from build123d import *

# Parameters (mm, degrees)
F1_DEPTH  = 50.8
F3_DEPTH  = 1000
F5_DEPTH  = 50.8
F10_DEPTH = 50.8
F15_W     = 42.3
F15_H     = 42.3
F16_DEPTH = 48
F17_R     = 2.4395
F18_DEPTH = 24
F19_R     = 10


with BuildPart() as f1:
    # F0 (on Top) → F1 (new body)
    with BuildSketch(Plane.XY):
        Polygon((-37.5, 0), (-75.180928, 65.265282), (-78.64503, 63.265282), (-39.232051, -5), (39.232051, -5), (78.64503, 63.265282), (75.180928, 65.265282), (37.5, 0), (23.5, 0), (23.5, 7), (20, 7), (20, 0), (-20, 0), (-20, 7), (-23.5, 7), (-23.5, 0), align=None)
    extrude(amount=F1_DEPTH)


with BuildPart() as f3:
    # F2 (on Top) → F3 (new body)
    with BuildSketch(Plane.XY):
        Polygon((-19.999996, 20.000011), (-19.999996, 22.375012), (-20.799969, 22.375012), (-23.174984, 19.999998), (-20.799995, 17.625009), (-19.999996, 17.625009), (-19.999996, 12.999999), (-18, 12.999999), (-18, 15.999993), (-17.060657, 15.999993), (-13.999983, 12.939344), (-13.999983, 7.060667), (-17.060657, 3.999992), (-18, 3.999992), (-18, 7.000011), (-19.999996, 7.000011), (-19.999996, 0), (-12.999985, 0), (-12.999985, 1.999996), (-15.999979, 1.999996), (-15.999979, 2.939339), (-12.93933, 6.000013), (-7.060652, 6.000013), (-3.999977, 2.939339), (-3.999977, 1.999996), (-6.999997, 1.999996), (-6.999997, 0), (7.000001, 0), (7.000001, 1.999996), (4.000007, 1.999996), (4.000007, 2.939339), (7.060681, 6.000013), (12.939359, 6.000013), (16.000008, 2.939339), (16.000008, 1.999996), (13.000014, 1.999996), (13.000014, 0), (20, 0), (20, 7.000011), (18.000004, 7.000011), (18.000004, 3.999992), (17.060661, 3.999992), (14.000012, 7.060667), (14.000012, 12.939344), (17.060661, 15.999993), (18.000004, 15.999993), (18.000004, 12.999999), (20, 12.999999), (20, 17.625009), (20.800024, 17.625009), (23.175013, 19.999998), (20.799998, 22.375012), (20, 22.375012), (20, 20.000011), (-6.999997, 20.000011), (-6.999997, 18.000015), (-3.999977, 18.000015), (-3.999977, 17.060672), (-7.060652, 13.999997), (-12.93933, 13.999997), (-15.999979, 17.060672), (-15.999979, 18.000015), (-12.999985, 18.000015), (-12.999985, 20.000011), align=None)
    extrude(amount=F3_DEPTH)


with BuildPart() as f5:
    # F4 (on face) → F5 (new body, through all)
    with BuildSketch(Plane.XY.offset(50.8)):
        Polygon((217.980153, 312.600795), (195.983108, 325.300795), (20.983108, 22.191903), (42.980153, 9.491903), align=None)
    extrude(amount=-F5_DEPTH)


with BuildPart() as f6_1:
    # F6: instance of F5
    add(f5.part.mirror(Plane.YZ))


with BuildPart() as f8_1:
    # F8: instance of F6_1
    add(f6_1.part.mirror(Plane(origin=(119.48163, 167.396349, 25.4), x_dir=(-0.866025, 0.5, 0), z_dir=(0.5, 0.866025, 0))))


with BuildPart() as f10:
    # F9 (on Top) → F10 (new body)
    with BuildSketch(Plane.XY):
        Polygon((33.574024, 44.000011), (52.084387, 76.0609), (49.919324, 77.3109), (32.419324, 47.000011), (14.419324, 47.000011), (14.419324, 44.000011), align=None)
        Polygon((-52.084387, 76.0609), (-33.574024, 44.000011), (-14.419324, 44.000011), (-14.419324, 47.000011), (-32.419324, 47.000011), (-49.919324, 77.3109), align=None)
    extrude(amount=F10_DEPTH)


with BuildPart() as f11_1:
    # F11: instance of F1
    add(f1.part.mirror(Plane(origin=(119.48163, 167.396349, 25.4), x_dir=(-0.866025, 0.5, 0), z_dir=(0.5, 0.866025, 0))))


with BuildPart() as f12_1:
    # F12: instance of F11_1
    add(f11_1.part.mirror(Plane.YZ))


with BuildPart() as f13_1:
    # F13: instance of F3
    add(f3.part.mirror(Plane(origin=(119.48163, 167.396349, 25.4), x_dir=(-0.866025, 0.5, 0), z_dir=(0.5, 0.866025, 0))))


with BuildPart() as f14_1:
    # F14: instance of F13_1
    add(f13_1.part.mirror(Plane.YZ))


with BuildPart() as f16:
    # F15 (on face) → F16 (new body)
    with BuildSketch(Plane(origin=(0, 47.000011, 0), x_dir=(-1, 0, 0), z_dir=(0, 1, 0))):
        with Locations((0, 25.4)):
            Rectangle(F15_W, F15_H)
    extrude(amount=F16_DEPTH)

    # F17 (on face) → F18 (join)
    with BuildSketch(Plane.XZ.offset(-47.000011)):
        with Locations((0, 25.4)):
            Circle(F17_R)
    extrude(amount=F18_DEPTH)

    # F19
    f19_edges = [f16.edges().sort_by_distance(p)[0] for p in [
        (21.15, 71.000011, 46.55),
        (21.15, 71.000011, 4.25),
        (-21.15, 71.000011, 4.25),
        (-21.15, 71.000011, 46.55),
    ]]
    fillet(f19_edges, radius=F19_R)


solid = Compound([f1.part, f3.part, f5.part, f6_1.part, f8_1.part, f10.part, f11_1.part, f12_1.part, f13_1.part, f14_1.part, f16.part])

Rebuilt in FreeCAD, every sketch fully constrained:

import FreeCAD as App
import Part
import Sketcher

V = App.Vector
Q = App.Units.Quantity


def edges_at(feature, points):
    """Names of the edges that pass closest to the given points."""
    edges = feature.Shape.Edges
    near = lambda p: min(range(len(edges)), key=lambda i: edges[i].distToShape(Part.Vertex(*p))[0])
    return sorted({f"Edge{near(p) + 1}" for p in points})

doc = App.newDocument("Part")
params = doc.addObject("Spreadsheet::Sheet", "Params")
for row, (alias, value) in enumerate([
    ("sketch1_width", "14 mm"),
    ("sketch1_width2", "40 mm"),
    ("sketch1_height", "7 mm"),
    ("sketch1_length", "4 mm"),
    ("sketch1_width3", "3.5 mm"),
    ("pad1_length", "50.8 mm"),
    ("sketch2_width", "0.799999 mm"),
    ("pad2_length", "1000 mm"),
    ("sketch3_length", "350.000001 mm"),
    ("sketch3_length2", "25.4 mm"),
    ("pad3_length", "50.8 mm"),
    ("sketch4_width", "18 mm"),
    ("sketch4_height", "3 mm"),
    ("sketch4_length", "35 mm"),
    ("sketch4_length2", "2.5 mm"),
    ("pad4_length", "50.8 mm"),
    ("sketch5_width", "42.3 mm"),
    ("pad5_length", "48 mm"),
    ("pad6_length", "24 mm"),
    ("fillet_radius", "10 mm"),
], start=1):
    params.set(f"A{row}", alias)
    params.set(f"B{row}", "=" + value)
    params.setAlias(f"B{row}", alias)

body = doc.addObject("PartDesign::Body", "Body")

sketch1 = body.newObject("Sketcher::SketchObject", "Sketch")
sketch1.AttachmentSupport = (doc.getObject("XY_Plane"), [""])
sketch1.MapMode = "FlatFace"
sketch1.addGeometry([
    Part.LineSegment(V(-37.5, 0, 0), V(-75.180928, 65.265282, 0)),
    Part.LineSegment(V(-75.180928, 65.265282, 0), V(-78.64503, 63.265282, 0)),
    Part.LineSegment(V(-78.64503, 63.265282, 0), V(-39.232051, -5, 0)),
    Part.LineSegment(V(-39.232051, -5, 0), V(39.232051, -5, 0)),
    Part.LineSegment(V(39.232051, -5, 0), V(78.64503, 63.265282, 0)),
    Part.LineSegment(V(78.64503, 63.265282, 0), V(75.180928, 65.265282, 0)),
    Part.LineSegment(V(75.180928, 65.265282, 0), V(37.5, 0, 0)),
    Part.LineSegment(V(37.5, 0, 0), V(23.5, 0, 0)),
    Part.LineSegment(V(23.5, 0, 0), V(23.5, 7, 0)),
    Part.LineSegment(V(23.5, 7, 0), V(20, 7, 0)),
    Part.LineSegment(V(20, 7, 0), V(20, 0, 0)),
    Part.LineSegment(V(20, 0, 0), V(-20, 0, 0)),
    Part.LineSegment(V(-20, 0, 0), V(-20, 7, 0)),
    Part.LineSegment(V(-20, 7, 0), V(-23.5, 7, 0)),
    Part.LineSegment(V(-23.5, 7, 0), V(-23.5, 0, 0)),
    Part.LineSegment(V(-23.5, 0, 0), V(-37.5, 0, 0)),
], False)
sketch1.addConstraint([
    Sketcher.Constraint("Coincident", 0, 2, 1, 1),
    Sketcher.Constraint("Coincident", 1, 2, 2, 1),
    Sketcher.Constraint("Coincident", 2, 2, 3, 1),
    Sketcher.Constraint("Coincident", 3, 2, 4, 1),
    Sketcher.Constraint("Coincident", 4, 2, 5, 1),
    Sketcher.Constraint("Coincident", 5, 2, 6, 1),
    Sketcher.Constraint("Coincident", 6, 2, 7, 1),
    Sketcher.Constraint("Coincident", 7, 2, 8, 1),
    Sketcher.Constraint("Coincident", 8, 2, 9, 1),
    Sketcher.Constraint("Coincident", 9, 2, 10, 1),
    Sketcher.Constraint("Coincident", 10, 2, 11, 1),
    Sketcher.Constraint("Coincident", 11, 2, 12, 1),
    Sketcher.Constraint("Coincident", 12, 2, 13, 1),
    Sketcher.Constraint("Coincident", 13, 2, 14, 1),
    Sketcher.Constraint("Coincident", 14, 2, 15, 1),
    Sketcher.Constraint("Coincident", 15, 2, 0, 1),
    Sketcher.Constraint("Horizontal", 3),
    Sketcher.Constraint("Horizontal", 7),
    Sketcher.Constraint("Vertical", 8),
    Sketcher.Constraint("Horizontal", 9),
    Sketcher.Constraint("Vertical", 10),
    Sketcher.Constraint("Horizontal", 11),
    Sketcher.Constraint("Vertical", 12),
    Sketcher.Constraint("Horizontal", 13),
    Sketcher.Constraint("Vertical", 14),
    Sketcher.Constraint("Horizontal", 15),
    Sketcher.Constraint("Symmetric", 10, 2, 11, 2, -1, 1),
    Sketcher.Constraint("Symmetric", 7, 2, 14, 2, -1, 1),
    Sketcher.Constraint("Symmetric", 1, 2, 4, 2, -2),
    Sketcher.Constraint("Symmetric", 0, 2, 5, 2, -2),
    Sketcher.Constraint("Symmetric", 6, 2, 15, 2, -2),
    Sketcher.Constraint("Perpendicular", 0, 1),
    Sketcher.Constraint("Perpendicular", 1, 2),
    Sketcher.Constraint("Perpendicular", 4, 5),
    Sketcher.Constraint("Horizontal", 9, 2, 12, 2),
    Sketcher.Constraint("DistanceX", 7, 2, 7, 1, 14.0),
    Sketcher.Constraint("DistanceX", 11, 2, 11, 1, 40.0),
    Sketcher.Constraint("DistanceY", 8, 1, 8, 2, 7.0),
    Sketcher.Constraint("Angle", 0, Q("120 deg")),
    Sketcher.Constraint("Distance", 1, 4.0),
    Sketcher.Constraint("DistanceX", 9, 2, 9, 1, 3.5),
    Sketcher.Constraint("DistanceY", 2, 2, -1, 1, 5.0),
    Sketcher.Constraint("DistanceY", -1, 1, 0, 2, 65.265282),
])
sketch1.setExpression("Constraints[35]", "Params.sketch1_width")
sketch1.setExpression("Constraints[36]", "Params.sketch1_width2")
sketch1.setExpression("Constraints[37]", "Params.sketch1_height")
sketch1.setExpression("Constraints[39]", "Params.sketch1_length")
sketch1.setExpression("Constraints[40]", "Params.sketch1_width3")
pad1 = body.newObject("PartDesign::Pad", "Pad")
pad1.Profile = sketch1
pad1.setExpression("Length", "Params.pad1_length")
body2 = doc.addObject("PartDesign::Body", "Body001")

sketch2 = body2.newObject("Sketcher::SketchObject", "Sketch001")
sketch2.AttachmentSupport = (doc.getObject("XY_Plane001"), [""])
sketch2.MapMode = "FlatFace"
sketch2.addGeometry([
    Part.LineSegment(V(-19.999996, 20.000011, 0), V(-19.999996, 22.375012, 0)),
    Part.LineSegment(V(-19.999996, 22.375012, 0), V(-20.799969, 22.375012, 0)),
    Part.LineSegment(V(-20.799969, 22.375012, 0), V(-23.174984, 19.999998, 0)),
    Part.LineSegment(V(-23.174984, 19.999998, 0), V(-20.799995, 17.625009, 0)),
    Part.LineSegment(V(-20.799995, 17.625009, 0), V(-19.999996, 17.625009, 0)),
    Part.LineSegment(V(-19.999996, 17.625009, 0), V(-19.999996, 12.999999, 0)),
    Part.LineSegment(V(-19.999996, 12.999999, 0), V(-18, 12.999999, 0)),
    Part.LineSegment(V(-18, 12.999999, 0), V(-18, 15.999993, 0)),
    Part.LineSegment(V(-18, 15.999993, 0), V(-17.060657, 15.999993, 0)),
    Part.LineSegment(V(-17.060657, 15.999993, 0), V(-13.999983, 12.939344, 0)),
    Part.LineSegment(V(-13.999983, 12.939344, 0), V(-13.999983, 7.060667, 0)),
    Part.LineSegment(V(-13.999983, 7.060667, 0), V(-17.060657, 3.999992, 0)),
    Part.LineSegment(V(-17.060657, 3.999992, 0), V(-18, 3.999992, 0)),
    Part.LineSegment(V(-18, 3.999992, 0), V(-18, 7.000011, 0)),
    Part.LineSegment(V(-18, 7.000011, 0), V(-19.999996, 7.000011, 0)),
    Part.LineSegment(V(-19.999996, 7.000011, 0), V(-19.999996, 0, 0)),
    Part.LineSegment(V(-19.999996, 0, 0), V(-12.999985, 0, 0)),
    Part.LineSegment(V(-12.999985, 0, 0), V(-12.999985, 1.999996, 0)),
    Part.LineSegment(V(-12.999985, 1.999996, 0), V(-15.999979, 1.999996, 0)),
    Part.LineSegment(V(-15.999979, 1.999996, 0), V(-15.999979, 2.939339, 0)),
    Part.LineSegment(V(-15.999979, 2.939339, 0), V(-12.93933, 6.000013, 0)),
    Part.LineSegment(V(-12.93933, 6.000013, 0), V(-7.060652, 6.000013, 0)),
    Part.LineSegment(V(-7.060652, 6.000013, 0), V(-3.999977, 2.939339, 0)),
    Part.LineSegment(V(-3.999977, 2.939339, 0), V(-3.999977, 1.999996, 0)),
    Part.LineSegment(V(-3.999977, 1.999996, 0), V(-6.999997, 1.999996, 0)),
    Part.LineSegment(V(-6.999997, 1.999996, 0), V(-6.999997, 0, 0)),
    Part.LineSegment(V(-6.999997, 0, 0), V(7.000001, 0, 0)),
    Part.LineSegment(V(7.000001, 0, 0), V(7.000001, 1.999996, 0)),
    Part.LineSegment(V(7.000001, 1.999996, 0), V(4.000007, 1.999996, 0)),
    Part.LineSegment(V(4.000007, 1.999996, 0), V(4.000007, 2.939339, 0)),
    Part.LineSegment(V(4.000007, 2.939339, 0), V(7.060681, 6.000013, 0)),
    Part.LineSegment(V(7.060681, 6.000013, 0), V(12.939359, 6.000013, 0)),
    Part.LineSegment(V(12.939359, 6.000013, 0), V(16.000008, 2.939339, 0)),
    Part.LineSegment(V(16.000008, 2.939339, 0), V(16.000008, 1.999996, 0)),
    Part.LineSegment(V(16.000008, 1.999996, 0), V(13.000014, 1.999996, 0)),
    Part.LineSegment(V(13.000014, 1.999996, 0), V(13.000014, 0, 0)),
    Part.LineSegment(V(13.000014, 0, 0), V(20, 0, 0)),
    Part.LineSegment(V(20, 0, 0), V(20, 7.000011, 0)),
    Part.LineSegment(V(20, 7.000011, 0), V(18.000004, 7.000011, 0)),
    Part.LineSegment(V(18.000004, 7.000011, 0), V(18.000004, 3.999992, 0)),
    Part.LineSegment(V(18.000004, 3.999992, 0), V(17.060661, 3.999992, 0)),
    Part.LineSegment(V(17.060661, 3.999992, 0), V(14.000012, 7.060667, 0)),
    Part.LineSegment(V(14.000012, 7.060667, 0), V(14.000012, 12.939344, 0)),
    Part.LineSegment(V(14.000012, 12.939344, 0), V(17.060661, 15.999993, 0)),
    Part.LineSegment(V(17.060661, 15.999993, 0), V(18.000004, 15.999993, 0)),
    Part.LineSegment(V(18.000004, 15.999993, 0), V(18.000004, 12.999999, 0)),
    Part.LineSegment(V(18.000004, 12.999999, 0), V(20, 12.999999, 0)),
    Part.LineSegment(V(20, 12.999999, 0), V(20, 17.625009, 0)),
    Part.LineSegment(V(20, 17.625009, 0), V(20.800024, 17.625009, 0)),
    Part.LineSegment(V(20.800024, 17.625009, 0), V(23.175013, 19.999998, 0)),
    Part.LineSegment(V(23.175013, 19.999998, 0), V(20.799998, 22.375012, 0)),
    Part.LineSegment(V(20.799998, 22.375012, 0), V(20, 22.375012, 0)),
    Part.LineSegment(V(20, 22.375012, 0), V(20, 20.000011, 0)),
    Part.LineSegment(V(20, 20.000011, 0), V(-6.999997, 20.000011, 0)),
    Part.LineSegment(V(-6.999997, 20.000011, 0), V(-6.999997, 18.000015, 0)),
    Part.LineSegment(V(-6.999997, 18.000015, 0), V(-3.999977, 18.000015, 0)),
    Part.LineSegment(V(-3.999977, 18.000015, 0), V(-3.999977, 17.060672, 0)),
    Part.LineSegment(V(-3.999977, 17.060672, 0), V(-7.060652, 13.999997, 0)),
    Part.LineSegment(V(-7.060652, 13.999997, 0), V(-12.93933, 13.999997, 0)),
    Part.LineSegment(V(-12.93933, 13.999997, 0), V(-15.999979, 17.060672, 0)),
    Part.LineSegment(V(-15.999979, 17.060672, 0), V(-15.999979, 18.000015, 0)),
    Part.LineSegment(V(-15.999979, 18.000015, 0), V(-12.999985, 18.000015, 0)),
    Part.LineSegment(V(-12.999985, 18.000015, 0), V(-12.999985, 20.000011, 0)),
    Part.LineSegment(V(-12.999985, 20.000011, 0), V(-19.999996, 20.000011, 0)),
], False)
sketch2.addConstraint([
    Sketcher.Constraint("Coincident", 0, 2, 1, 1),
    Sketcher.Constraint("Coincident", 1, 2, 2, 1),
    Sketcher.Constraint("Coincident", 2, 2, 3, 1),
    Sketcher.Constraint("Coincident", 3, 2, 4, 1),
    Sketcher.Constraint("Coincident", 4, 2, 5, 1),
    Sketcher.Constraint("Coincident", 5, 2, 6, 1),
    Sketcher.Constraint("Coincident", 6, 2, 7, 1),
    Sketcher.Constraint("Coincident", 7, 2, 8, 1),
    Sketcher.Constraint("Coincident", 8, 2, 9, 1),
    Sketcher.Constraint("Coincident", 9, 2, 10, 1),
    Sketcher.Constraint("Coincident", 10, 2, 11, 1),
    Sketcher.Constraint("Coincident", 11, 2, 12, 1),
    Sketcher.Constraint("Coincident", 12, 2, 13, 1),
    Sketcher.Constraint("Coincident", 13, 2, 14, 1),
    Sketcher.Constraint("Coincident", 14, 2, 15, 1),
    Sketcher.Constraint("Coincident", 15, 2, 16, 1),
    Sketcher.Constraint("Coincident", 16, 2, 17, 1),
    Sketcher.Constraint("Coincident", 17, 2, 18, 1),
    Sketcher.Constraint("Coincident", 18, 2, 19, 1),
    Sketcher.Constraint("Coincident", 19, 2, 20, 1),
    Sketcher.Constraint("Coincident", 20, 2, 21, 1),
    Sketcher.Constraint("Coincident", 21, 2, 22, 1),
    Sketcher.Constraint("Coincident", 22, 2, 23, 1),
    Sketcher.Constraint("Coincident", 23, 2, 24, 1),
    Sketcher.Constraint("Coincident", 24, 2, 25, 1),
    Sketcher.Constraint("Coincident", 25, 2, 26, 1),
    Sketcher.Constraint("Coincident", 26, 2, 27, 1),
    Sketcher.Constraint("Coincident", 27, 2, 28, 1),
    Sketcher.Constraint("Coincident", 28, 2, 29, 1),
    Sketcher.Constraint("Coincident", 29, 2, 30, 1),
    Sketcher.Constraint("Coincident", 30, 2, 31, 1),
    Sketcher.Constraint("Coincident", 31, 2, 32, 1),
    Sketcher.Constraint("Coincident", 32, 2, 33, 1),
    Sketcher.Constraint("Coincident", 33, 2, 34, 1),
    Sketcher.Constraint("Coincident", 34, 2, 35, 1),
    Sketcher.Constraint("Coincident", 35, 2, 36, 1),
    Sketcher.Constraint("Coincident", 36, 2, 37, 1),
    Sketcher.Constraint("Coincident", 37, 2, 38, 1),
    Sketcher.Constraint("Coincident", 38, 2, 39, 1),
    Sketcher.Constraint("Coincident", 39, 2, 40, 1),
    Sketcher.Constraint("Coincident", 40, 2, 41, 1),
    Sketcher.Constraint("Coincident", 41, 2, 42, 1),
    Sketcher.Constraint("Coincident", 42, 2, 43, 1),
    Sketcher.Constraint("Coincident", 43, 2, 44, 1),
    Sketcher.Constraint("Coincident", 44, 2, 45, 1),
    Sketcher.Constraint("Coincident", 45, 2, 46, 1),
    Sketcher.Constraint("Coincident", 46, 2, 47, 1),
    Sketcher.Constraint("Coincident", 47, 2, 48, 1),
    Sketcher.Constraint("Coincident", 48, 2, 49, 1),
    Sketcher.Constraint("Coincident", 49, 2, 50, 1),
    Sketcher.Constraint("Coincident", 50, 2, 51, 1),
    Sketcher.Constraint("Coincident", 51, 2, 52, 1),
    Sketcher.Constraint("Coincident", 52, 2, 53, 1),
    Sketcher.Constraint("Coincident", 53, 2, 54, 1),
    Sketcher.Constraint("Coincident", 54, 2, 55, 1),
    Sketcher.Constraint("Coincident", 55, 2, 56, 1),
    Sketcher.Constraint("Coincident", 56, 2, 57, 1),
    Sketcher.Constraint("Coincident", 57, 2, 58, 1),
    Sketcher.Constraint("Coincident", 58, 2, 59, 1),
    Sketcher.Constraint("Coincident", 59, 2, 60, 1),
    Sketcher.Constraint("Coincident", 60, 2, 61, 1),
    Sketcher.Constraint("Coincident", 61, 2, 62, 1),
    Sketcher.Constraint("Coincident", 62, 2, 63, 1),
    Sketcher.Constraint("Coincident", 63, 2, 0, 1),
    Sketcher.Constraint("Vertical", 0),
    Sketcher.Constraint("Horizontal", 1),
    Sketcher.Constraint("Horizontal", 4),
    Sketcher.Constraint("Vertical", 5),
    Sketcher.Constraint("Horizontal", 6),
    Sketcher.Constraint("Vertical", 7),
    Sketcher.Constraint("Horizontal", 8),
    Sketcher.Constraint("Vertical", 10),
    Sketcher.Constraint("Horizontal", 12),
    Sketcher.Constraint("Vertical", 13),
    Sketcher.Constraint("Horizontal", 14),
    Sketcher.Constraint("Vertical", 15),
    Sketcher.Constraint("Horizontal", 16),
    Sketcher.Constraint("Vertical", 17),
    Sketcher.Constraint("Horizontal", 18),
    Sketcher.Constraint("Vertical", 19),
    Sketcher.Constraint("Horizontal", 21),
    Sketcher.Constraint("Vertical", 23),
    Sketcher.Constraint("Horizontal", 24),
    Sketcher.Constraint("Vertical", 25),
    Sketcher.Constraint("Horizontal", 26),
    Sketcher.Constraint("Vertical", 27),
    Sketcher.Constraint("Horizontal", 28),
    Sketcher.Constraint("Vertical", 29),
    Sketcher.Constraint("Horizontal", 31),
    Sketcher.Constraint("Vertical", 33),
    Sketcher.Constraint("Horizontal", 34),
    Sketcher.Constraint("Vertical", 35),
    Sketcher.Constraint("Horizontal", 36),
    Sketcher.Constraint("Vertical", 37),
    Sketcher.Constraint("Horizontal", 38),
    Sketcher.Constraint("Vertical", 39),
    Sketcher.Constraint("Horizontal", 40),
    Sketcher.Constraint("Vertical", 42),
    Sketcher.Constraint("Horizontal", 44),
    Sketcher.Constraint("Vertical", 45),
    Sketcher.Constraint("Horizontal", 46),
    Sketcher.Constraint("Vertical", 47),
    Sketcher.Constraint("Horizontal", 48),
    Sketcher.Constraint("Horizontal", 51),
    Sketcher.Constraint("Vertical", 52),
    Sketcher.Constraint("Horizontal", 53),
    Sketcher.Constraint("Vertical", 54),
    Sketcher.Constraint("Horizontal", 55),
    Sketcher.Constraint("Vertical", 56),
    Sketcher.Constraint("Horizontal", 58),
    Sketcher.Constraint("Vertical", 60),
    Sketcher.Constraint("Horizontal", 61),
    Sketcher.Constraint("Vertical", 62),
    Sketcher.Constraint("Horizontal", 63),
    Sketcher.Constraint("Symmetric", 25, 2, 26, 2, -1, 1),
    Sketcher.Constraint("Symmetric", 15, 2, 36, 2, -1, 1),
    Sketcher.Constraint("Symmetric", 13, 2, 38, 2, -2),
    Sketcher.Constraint("Symmetric", 11, 2, 40, 2, -2),
    Sketcher.Constraint("Symmetric", 8, 2, 43, 2, -2),
    Sketcher.Constraint("Symmetric", 6, 2, 45, 2, -2),
    Sketcher.Constraint("Symmetric", 4, 2, 47, 2, -2),
    Sketcher.Constraint("Symmetric", 0, 2, 51, 2, -2),
    Sketcher.Constraint("PointOnObject", 15, 2, -1),
    Sketcher.Constraint("Perpendicular", 2, 3),
    Sketcher.Constraint("Perpendicular", 3, 11),
    Sketcher.Constraint("Perpendicular", 9, 20),
    Sketcher.Constraint("Perpendicular", 11, 22),
    Sketcher.Constraint("Perpendicular", 22, 30),
    Sketcher.Constraint("Parallel", 32, 41),
    Sketcher.Constraint("Parallel", 30, 43),
    Sketcher.Constraint("Parallel", 43, 49),
    Sketcher.Constraint("Perpendicular", 49, 50),
    Sketcher.Constraint("Perpendicular", 50, 57),
    Sketcher.Constraint("Parallel", 41, 59),
    Sketcher.Constraint("Horizontal", 19, 2, 22, 2),
    Sketcher.Constraint("Horizontal", 18, 2, 23, 2),
    Sketcher.Constraint("Horizontal", 24, 2, 27, 2),
    Sketcher.Constraint("Horizontal", 22, 2, 29, 2),
    Sketcher.Constraint("Horizontal", 21, 2, 30, 2),
    Sketcher.Constraint("Horizontal", 29, 2, 32, 2),
    Sketcher.Constraint("Horizontal", 28, 2, 33, 2),
    Sketcher.Constraint("Horizontal", 10, 2, 41, 2),
    Sketcher.Constraint("Horizontal", 9, 2, 42, 2),
    Sketcher.Constraint("Horizontal", 2, 2, 49, 2),
    Sketcher.Constraint("Horizontal", 56, 2, 59, 2),
    Sketcher.Constraint("Horizontal", 55, 2, 60, 2),
    Sketcher.Constraint("Horizontal", 53, 2, 62, 2),
    Sketcher.Constraint("Vertical", 0, 2, 4, 2),
    Sketcher.Constraint("Vertical", 8, 2, 11, 2),
    Sketcher.Constraint("Vertical", 7, 2, 12, 2),
    Sketcher.Constraint("Vertical", 5, 2, 14, 2),
    Sketcher.Constraint("Vertical", 25, 2, 53, 2),
    Sketcher.Constraint("Vertical", 23, 2, 55, 2),
    Sketcher.Constraint("Vertical", 21, 2, 57, 2),
    Sketcher.Constraint("Vertical", 20, 2, 58, 2),
    Sketcher.Constraint("Vertical", 17, 2, 61, 2),
    Sketcher.Constraint("Equal", 18, 28),
    Sketcher.Constraint("Equal", 21, 31),
    Sketcher.Constraint("Equal", 28, 34),
    Sketcher.Constraint("Equal", 4, 51),
    Sketcher.Constraint("Equal", 61, 7),
    Sketcher.Constraint("Equal", 58, 10),
    Sketcher.Constraint("Equal", 55, 13),
    Sketcher.Constraint("Equal", 63, 15),
    Sketcher.Constraint("Equal", 46, 17),
    Sketcher.Constraint("Equal", 44, 19),
    Sketcher.Constraint("Equal", 35, 54),
    Sketcher.Constraint("Equal", 33, 56),
    Sketcher.Constraint("Equal", 9, 20),
    Sketcher.Constraint("Equal", 22, 30),
    Sketcher.Constraint("DistanceX", 4, 1, 4, 2, 0.799999),
    Sketcher.Constraint("DistanceY", -1, 1, 2, 2, 19.999998),
    Sketcher.Constraint("DistanceY", -1, 1, 5, 2, 12.999999),
    Sketcher.Constraint("DistanceX", 6, 2, -1, 1, 18.0),
    Sketcher.Constraint("DistanceX", -1, 1, 26, 2, 7.000001),
    Sketcher.Constraint("DistanceY", 0, 1, 0, 2, 2.375001),
    Sketcher.Constraint("DistanceX", 16, 1, 16, 2, 7.000011),
    Sketcher.Constraint("DistanceX", 24, 2, 24, 1, 3.00002),
    Sketcher.Constraint("DistanceY", 5, 2, 5, 1, 4.62501),
    Sketcher.Constraint("Distance", 9, 4.328429),
    Sketcher.Constraint("Distance", 43, 4.328411),
    Sketcher.Constraint("DistanceX", 1, 2, 1, 1, 0.799973),
    Sketcher.Constraint("DistanceX", 8, 1, 8, 2, 0.939343),
    Sketcher.Constraint("DistanceX", 18, 2, 18, 1, 2.999994),
])
sketch2.setExpression("Constraints[170]", "Params.sketch2_width")
pad2 = body2.newObject("PartDesign::Pad", "Pad001")
pad2.Profile = sketch2
pad2.setExpression("Length", "Params.pad2_length")
body3 = doc.addObject("PartDesign::Body", "Body002")

sketch3 = body3.newObject("Sketcher::SketchObject", "Sketch002")
sketch3.AttachmentSupport = (doc.getObject("XY_Plane002"), [""])
sketch3.MapMode = "FlatFace"
sketch3.AttachmentOffset = App.Placement(V(0, 0, 50.8), App.Rotation())
sketch3.addGeometry([
    Part.LineSegment(V(217.980153, 312.600795, 0), V(195.983108, 325.300795, 0)),
    Part.LineSegment(V(195.983108, 325.300795, 0), V(20.983108, 22.191903, 0)),
    Part.LineSegment(V(20.983108, 22.191903, 0), V(42.980153, 9.491903, 0)),
    Part.LineSegment(V(42.980153, 9.491903, 0), V(217.980153, 312.600795, 0)),
], False)
sketch3.addConstraint([
    Sketcher.Constraint("Coincident", 0, 2, 1, 1),
    Sketcher.Constraint("Coincident", 1, 2, 2, 1),
    Sketcher.Constraint("Coincident", 2, 2, 3, 1),
    Sketcher.Constraint("Coincident", 3, 2, 0, 1),
    Sketcher.Constraint("Perpendicular", 0, 1),
    Sketcher.Constraint("Perpendicular", 1, 2),
    Sketcher.Constraint("Perpendicular", 2, 3),
    Sketcher.Constraint("Angle", 0, Q("150 deg")),
    Sketcher.Constraint("Distance", 1, 350.000001),
    Sketcher.Constraint("Distance", 0, 25.4),
    Sketcher.Constraint("DistanceX", -1, 1, 1, 2, 20.983108),
    Sketcher.Constraint("DistanceY", -1, 1, 0, 2, 325.300795),
])
sketch3.setExpression("Constraints[8]", "Params.sketch3_length")
sketch3.setExpression("Constraints[9]", "Params.sketch3_length2")
pad3 = body3.newObject("PartDesign::Pad", "Pad002")
pad3.Profile = sketch3
pad3.setExpression("Length", "Params.pad3_length")
pad3.Reversed = True
body4 = doc.addObject("PartDesign::Body", "Body003")
doc.recompute()

mirroring = doc.addObject("Part::Mirroring", "Mirroring")
mirroring.Source = body3
mirroring.Base = V(0, 0, 0)
mirroring.Normal = V(1, 0, 0)
body4.BaseFeature = mirroring
doc.recompute()
body5 = doc.addObject("PartDesign::Body", "Body004")
doc.recompute()

mirroring2 = doc.addObject("Part::Mirroring", "Mirroring001")
mirroring2.Source = body4
mirroring2.Base = V(119.48163, 167.396349, 25.4)
mirroring2.Normal = V(0.500000175, 0.866025303, 0)
body5.BaseFeature = mirroring2
doc.recompute()
body6 = doc.addObject("PartDesign::Body", "Body005")
body6.AllowCompound = True

sketch4 = body6.newObject("Sketcher::SketchObject", "Sketch003")
sketch4.AttachmentSupport = (doc.getObject("XY_Plane005"), [""])
sketch4.MapMode = "FlatFace"
sketch4.addGeometry([
    Part.LineSegment(V(33.574024, 44.000011, 0), V(52.084387, 76.0609, 0)),
    Part.LineSegment(V(52.084387, 76.0609, 0), V(49.919324, 77.3109, 0)),
    Part.LineSegment(V(49.919324, 77.3109, 0), V(32.419324, 47.000011, 0)),
    Part.LineSegment(V(32.419324, 47.000011, 0), V(14.419324, 47.000011, 0)),
    Part.LineSegment(V(14.419324, 47.000011, 0), V(14.419324, 44.000011, 0)),
    Part.LineSegment(V(14.419324, 44.000011, 0), V(33.574024, 44.000011, 0)),
    Part.LineSegment(V(-52.084387, 76.0609, 0), V(-33.574024, 44.000011, 0)),
    Part.LineSegment(V(-33.574024, 44.000011, 0), V(-14.419324, 44.000011, 0)),
    Part.LineSegment(V(-14.419324, 44.000011, 0), V(-14.419324, 47.000011, 0)),
    Part.LineSegment(V(-14.419324, 47.000011, 0), V(-32.419324, 47.000011, 0)),
    Part.LineSegment(V(-32.419324, 47.000011, 0), V(-49.919324, 77.3109, 0)),
    Part.LineSegment(V(-49.919324, 77.3109, 0), V(-52.084387, 76.0609, 0)),
], False)
sketch4.addConstraint([
    Sketcher.Constraint("Coincident", 0, 2, 1, 1),
    Sketcher.Constraint("Coincident", 1, 2, 2, 1),
    Sketcher.Constraint("Coincident", 2, 2, 3, 1),
    Sketcher.Constraint("Coincident", 3, 2, 4, 1),
    Sketcher.Constraint("Coincident", 4, 2, 5, 1),
    Sketcher.Constraint("Coincident", 5, 2, 0, 1),
    Sketcher.Constraint("Coincident", 6, 2, 7, 1),
    Sketcher.Constraint("Coincident", 7, 2, 8, 1),
    Sketcher.Constraint("Coincident", 8, 2, 9, 1),
    Sketcher.Constraint("Coincident", 9, 2, 10, 1),
    Sketcher.Constraint("Coincident", 10, 2, 11, 1),
    Sketcher.Constraint("Coincident", 11, 2, 6, 1),
    Sketcher.Constraint("Horizontal", 3),
    Sketcher.Constraint("Vertical", 4),
    Sketcher.Constraint("Horizontal", 5),
    Sketcher.Constraint("Horizontal", 7),
    Sketcher.Constraint("Vertical", 8),
    Sketcher.Constraint("Horizontal", 9),
    Sketcher.Constraint("Symmetric", 5, 2, 6, 2, -2),
    Sketcher.Constraint("Symmetric", 3, 2, 8, 2, -2),
    Sketcher.Constraint("Symmetric", 1, 2, 10, 2, -2),
    Sketcher.Constraint("Symmetric", 0, 2, 11, 2, -2),
    Sketcher.Constraint("Perpendicular", 0, 1),
    Sketcher.Constraint("Perpendicular", 1, 2),
    Sketcher.Constraint("Parallel", 6, 10),
    Sketcher.Constraint("DistanceX", 3, 2, 3, 1, 18.0),
    Sketcher.Constraint("DistanceY", 4, 2, 4, 1, 3.0),
    Sketcher.Constraint("Angle", 0, Q("60 deg")),
    Sketcher.Constraint("Distance", 2, 35.0),
    Sketcher.Constraint("Distance", 1, 2.5),
    Sketcher.Constraint("DistanceY", -1, 1, 0, 2, 76.0609),
    Sketcher.Constraint("DistanceX", 6, 2, 5, 2, 67.148048),
])
sketch4.setExpression("Constraints[25]", "Params.sketch4_width")
sketch4.setExpression("Constraints[26]", "Params.sketch4_height")
sketch4.setExpression("Constraints[28]", "Params.sketch4_length")
sketch4.setExpression("Constraints[29]", "Params.sketch4_length2")
pad4 = body6.newObject("PartDesign::Pad", "Pad003")
pad4.Profile = sketch4
pad4.setExpression("Length", "Params.pad4_length")
body7 = doc.addObject("PartDesign::Body", "Body006")
doc.recompute()

mirroring3 = doc.addObject("Part::Mirroring", "Mirroring002")
mirroring3.Source = body
mirroring3.Base = V(119.48163, 167.396349, 25.4)
mirroring3.Normal = V(0.500000175, 0.866025303, 0)
body7.BaseFeature = mirroring3
doc.recompute()
body8 = doc.addObject("PartDesign::Body", "Body007")
doc.recompute()

mirroring4 = doc.addObject("Part::Mirroring", "Mirroring003")
mirroring4.Source = body7
mirroring4.Base = V(0, 0, 0)
mirroring4.Normal = V(1, 0, 0)
body8.BaseFeature = mirroring4
doc.recompute()
body9 = doc.addObject("PartDesign::Body", "Body008")
doc.recompute()

mirroring5 = doc.addObject("Part::Mirroring", "Mirroring004")
mirroring5.Source = body2
mirroring5.Base = V(119.48163, 167.396349, 25.4)
mirroring5.Normal = V(0.500000175, 0.866025303, 0)
body9.BaseFeature = mirroring5
doc.recompute()
body10 = doc.addObject("PartDesign::Body", "Body009")
doc.recompute()

mirroring6 = doc.addObject("Part::Mirroring", "Mirroring005")
mirroring6.Source = body9
mirroring6.Base = V(0, 0, 0)
mirroring6.Normal = V(1, 0, 0)
body10.BaseFeature = mirroring6
doc.recompute()
body11 = doc.addObject("PartDesign::Body", "Body010")

sketch5 = body11.newObject("Sketcher::SketchObject", "Sketch004")
sketch5.AttachmentSupport = (doc.getObject("XZ_Plane010"), [""])
sketch5.MapMode = "FlatFace"
sketch5.AttachmentOffset = App.Placement(V(0, 0, -47.000011), App.Rotation())
sketch5.addGeometry([
    Part.LineSegment(V(21.15, 46.55, 0), V(21.15, 4.25, 0)),
    Part.LineSegment(V(21.15, 4.25, 0), V(-21.15, 4.25, 0)),
    Part.LineSegment(V(-21.15, 4.25, 0), V(-21.15, 46.55, 0)),
    Part.LineSegment(V(-21.15, 46.55, 0), V(21.15, 46.55, 0)),
], False)
sketch5.addConstraint([
    Sketcher.Constraint("Coincident", 0, 2, 1, 1),
    Sketcher.Constraint("Coincident", 1, 2, 2, 1),
    Sketcher.Constraint("Coincident", 2, 2, 3, 1),
    Sketcher.Constraint("Coincident", 3, 2, 0, 1),
    Sketcher.Constraint("Vertical", 0),
    Sketcher.Constraint("Horizontal", 1),
    Sketcher.Constraint("Vertical", 2),
    Sketcher.Constraint("Horizontal", 3),
    Sketcher.Constraint("Equal", 3, 0),
    Sketcher.Constraint("DistanceX", 1, 2, 1, 1, 42.3),
    Sketcher.Constraint("DistanceX", -1, 1, 0, 2, 21.15),
    Sketcher.Constraint("DistanceY", -1, 1, 0, 2, 4.25),
])
sketch5.setExpression("Constraints[9]", "Params.sketch5_width")
pad5 = body11.newObject("PartDesign::Pad", "Pad004")
pad5.Profile = sketch5
pad5.setExpression("Length", "Params.pad5_length")
pad5.Reversed = True

sketch6 = body11.newObject("Sketcher::SketchObject", "Sketch005")
sketch6.AttachmentSupport = (doc.getObject("XZ_Plane010"), [""])
sketch6.MapMode = "FlatFace"
sketch6.AttachmentOffset = App.Placement(V(0, 0, -47.000011), App.Rotation())
sketch6.addGeometry(Part.Circle(V(0, 25.4, 0), V(0, 0, 1), 2.4395), False)
sketch6.addConstraint([
    Sketcher.Constraint("PointOnObject", 0, 3, -2),
    Sketcher.Constraint("Diameter", 0, 4.879),
    Sketcher.Constraint("DistanceY", -1, 1, 0, 3, 25.4),
])
pad6 = body11.newObject("PartDesign::Pad", "Pad005")
pad6.Profile = sketch6
pad6.setExpression("Length", "Params.pad6_length")
doc.recompute()

fillet = body11.newObject("PartDesign::Fillet", "Fillet")
fillet.Base = (pad6, edges_at(pad6, [
    (21.15, 71, 46.55),
    (21.15, 71, 4.25),
    (-21.15, 71, 4.25),
    (-21.15, 71, 46.55),
]))
fillet.setExpression("Radius", "Params.fillet_radius")
mirroring.Visibility = False
mirroring2.Visibility = False
mirroring3.Visibility = False
mirroring4.Visibility = False
mirroring5.Visibility = False
mirroring6.Visibility = False

doc.recompute()
